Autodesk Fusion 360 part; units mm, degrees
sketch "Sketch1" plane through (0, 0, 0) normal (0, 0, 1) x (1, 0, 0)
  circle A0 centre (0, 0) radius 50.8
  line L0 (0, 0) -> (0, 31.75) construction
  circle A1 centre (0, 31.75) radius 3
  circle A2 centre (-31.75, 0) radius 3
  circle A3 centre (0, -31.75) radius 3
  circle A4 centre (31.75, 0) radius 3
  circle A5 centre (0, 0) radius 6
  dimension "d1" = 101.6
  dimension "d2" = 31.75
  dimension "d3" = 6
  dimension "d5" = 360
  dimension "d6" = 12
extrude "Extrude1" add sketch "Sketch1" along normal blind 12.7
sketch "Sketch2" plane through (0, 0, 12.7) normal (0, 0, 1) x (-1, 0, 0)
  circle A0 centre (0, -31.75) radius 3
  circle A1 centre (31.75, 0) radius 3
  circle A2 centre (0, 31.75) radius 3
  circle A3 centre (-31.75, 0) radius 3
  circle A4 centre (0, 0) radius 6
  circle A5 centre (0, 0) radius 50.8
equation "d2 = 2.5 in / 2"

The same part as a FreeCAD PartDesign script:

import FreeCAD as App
import Part
import Sketcher
from FreeCAD import Vector
Q = App.Units.Quantity

doc = App.newDocument("Part")
body = doc.addObject("PartDesign::Body", "Body")

# Sketch on XY plane
sketch1 = body.newObject("Sketcher::SketchObject", "Sketch")
sketch1.AttachmentSupport = (doc.getObject("XY_Plane"), [""])
sketch1.MapMode = "FlatFace"
sketch1.addGeometry(Part.Circle(Vector(0, 0, 0), Vector(0, 0, 1), 50.8), False)
sketch1.addGeometry(Part.Circle(Vector(0, -31.75, 0), Vector(0, 0, 1), 3), False)
sketch1.addGeometry(Part.Circle(Vector(-31.75, 0, 0), Vector(0, 0, 1), 3), False)
sketch1.addGeometry(Part.Circle(Vector(0, 0, 0), Vector(0, 0, 1), 6), False)
sketch1.addGeometry(Part.Circle(Vector(31.75, 0, 0), Vector(0, 0, 1), 3), False)
sketch1.addGeometry(Part.Circle(Vector(0, 31.75, 0), Vector(0, 0, 1), 3), False)
sketch1.addConstraint(Sketcher.Constraint("Coincident", 0, 3, -1, 1))
sketch1.addConstraint(Sketcher.Constraint("Coincident", 3, 3, -1, 1))
sketch1.addConstraint(Sketcher.Constraint("Equal", 1, 2))
sketch1.addConstraint(Sketcher.Constraint("Equal", 2, 4))
sketch1.addConstraint(Sketcher.Constraint("Equal", 4, 5))
sketch1.addConstraint(Sketcher.Constraint("Symmetric", 2, 3, 4, 3, -1, 1))
sketch1.addConstraint(Sketcher.Constraint("Symmetric", 1, 3, 5, 3, -1, 1))
sketch1.addConstraint(Sketcher.Constraint("PointOnObject", 1, 3, -2))
sketch1.addConstraint(Sketcher.Constraint("PointOnObject", 2, 3, -1))
sketch1.addConstraint(Sketcher.Constraint("Diameter", 1, Q("6 mm")))
sketch1.addConstraint(Sketcher.Constraint("Diameter", 3, Q("12 mm")))
sketch1.addConstraint(Sketcher.Constraint("Diameter", 0, Q("101.6 mm")))
sketch1.addConstraint(Sketcher.Constraint("DistanceY", 1, 3, -1, 1, Q("31.75 mm")))
sketch1.addConstraint(Sketcher.Constraint("DistanceX", 2, 3, -1, 1, Q("31.75 mm")))
pad1 = body.newObject("PartDesign::Pad", "Pad")
pad1.Profile = sketch1
pad1.Length = 12.7

doc.recompute()
